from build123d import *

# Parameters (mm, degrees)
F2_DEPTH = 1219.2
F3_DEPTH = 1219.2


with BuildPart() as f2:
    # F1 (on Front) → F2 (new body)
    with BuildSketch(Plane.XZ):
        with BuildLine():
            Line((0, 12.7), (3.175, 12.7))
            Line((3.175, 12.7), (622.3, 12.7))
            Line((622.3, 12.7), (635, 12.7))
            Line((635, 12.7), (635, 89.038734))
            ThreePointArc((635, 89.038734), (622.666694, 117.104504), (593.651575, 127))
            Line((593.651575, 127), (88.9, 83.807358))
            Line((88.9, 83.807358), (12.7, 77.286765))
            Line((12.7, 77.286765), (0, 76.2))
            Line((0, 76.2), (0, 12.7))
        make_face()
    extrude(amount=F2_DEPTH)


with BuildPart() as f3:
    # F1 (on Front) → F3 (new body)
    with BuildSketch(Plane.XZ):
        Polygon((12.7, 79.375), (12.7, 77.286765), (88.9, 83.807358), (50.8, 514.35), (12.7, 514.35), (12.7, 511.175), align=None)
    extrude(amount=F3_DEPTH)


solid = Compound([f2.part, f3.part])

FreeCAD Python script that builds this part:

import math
import FreeCAD as App
import Part
import Sketcher

V = App.Vector
Q = App.Units.Quantity

doc = App.newDocument("Part")
body = doc.addObject("PartDesign::Body", "Body")

# Sketch on XZ plane
sketch1 = doc.addObject("Sketcher::SketchObject", "Sketch")
body.addObject(sketch1)
sketch1.AttachmentSupport = (doc.XZ_Plane, [""])
sketch1.MapMode = "FlatFace"
sketch1.addGeometry([
    Part.LineSegment(V(0, 13, 0), V(635, 13, 0)),  # 0
    Part.LineSegment(V(635, 13, 0), V(635, 89, 0)),  # 1
    Part.ArcOfCircle(Part.Circle(V(597, 89, 0), V(0, 0, 1), 38), math.radians(0), math.radians(95)),  # 2
    Part.LineSegment(V(594, 127, 0), V(89, 84, 0)),  # 3
    Part.LineSegment(V(89, 84, 0), V(13, 77, 0)),  # 4
    Part.LineSegment(V(13, 77, 0), V(0, 76, 0)),  # 5
    Part.LineSegment(V(0, 76, 0), V(0, 13, 0)),  # 6
], False)
sketch1.addConstraint([
    Sketcher.Constraint("Coincident", 0, 2, 1, 1),
    Sketcher.Constraint("Tangent", 1, 2, 2, 1),
    Sketcher.Constraint("Tangent", 2, 2, 3, 1),
    Sketcher.Constraint("Coincident", 3, 2, 4, 1),
    Sketcher.Constraint("Coincident", 4, 2, 5, 1),
    Sketcher.Constraint("Coincident", 5, 2, 6, 1),
    Sketcher.Constraint("Coincident", 6, 2, 0, 1),
    Sketcher.Constraint("Horizontal", 0),
    Sketcher.Constraint("Vertical", 1),
    Sketcher.Constraint("Vertical", 6),
    Sketcher.Constraint("PointOnObject", 5, 2, -2),
    Sketcher.Constraint("Parallel", 3, 4),
    Sketcher.Constraint("Parallel", 4, 5),
    Sketcher.Constraint("Radius", 2, Q("1.5 in")),
    Sketcher.Constraint("DistanceX", 0, 1, 0, 2, Q("25 in")),
    Sketcher.Constraint("DistanceY", 6, 2, 6, 1, Q("2.5 in")),
    Sketcher.Constraint("DistanceY", -1, 1, 2, 2, Q("5 in")),
    Sketcher.Constraint("DistanceY", -1, 1, 5, 2, Q("3 in")),
    Sketcher.Constraint("DistanceX", 3, 2, 2, 3, Q("20 in")),
    Sketcher.Constraint("DistanceX", 4, 2, 3, 2, Q("3 in")),
])
pad1 = doc.addObject("PartDesign::Pad", "Pad")
body.addObject(pad1)
pad1.Profile = sketch1
pad1.Length = Q("48 in")
body2 = doc.addObject("PartDesign::Body", "Body001")

# Sketch on XZ plane
sketch2 = doc.addObject("Sketcher::SketchObject", "Sketch001")
body2.addObject(sketch2)
sketch2.AttachmentSupport = (doc.getObject("XZ_Plane001"), [""])
sketch2.MapMode = "FlatFace"
sketch2.addGeometry([
    Part.LineSegment(V(13, 77, 0), V(89, 84, 0)),
    Part.LineSegment(V(89, 84, 0), V(51, 514, 0)),
    Part.LineSegment(V(51, 514, 0), V(13, 514, 0)),
    Part.LineSegment(V(13, 514, 0), V(13, 77, 0)),
], False)
sketch2.addConstraint([
    Sketcher.Constraint("Coincident", 0, 2, 1, 1),
    Sketcher.Constraint("Coincident", 1, 2, 2, 1),
    Sketcher.Constraint("Coincident", 2, 2, 3, 1),
    Sketcher.Constraint("Coincident", 3, 2, 0, 1),
    Sketcher.Constraint("Horizontal", 2),
    Sketcher.Constraint("Vertical", 3),
    Sketcher.Constraint("DistanceX", 2, 2, 2, 1, Q("1.5 in")),
    Sketcher.Constraint("DistanceX", -1, 1, 1, 2, Q("2 in")),
    Sketcher.Constraint("DistanceX", 2, 2, 0, 2, Q("3 in")),
    Sketcher.Constraint("DistanceY", -1, 1, 1, 2, Q("20.25 in")),
    Sketcher.Constraint("Distance", 0, 76.478482),
    Sketcher.Constraint("DistanceY", 3, 2, 3, 1, 437.063235),
])
pad2 = doc.addObject("PartDesign::Pad", "Pad001")
body2.addObject(pad2)
pad2.Profile = sketch2
pad2.Length = Q("48 in")

doc.recompute()
